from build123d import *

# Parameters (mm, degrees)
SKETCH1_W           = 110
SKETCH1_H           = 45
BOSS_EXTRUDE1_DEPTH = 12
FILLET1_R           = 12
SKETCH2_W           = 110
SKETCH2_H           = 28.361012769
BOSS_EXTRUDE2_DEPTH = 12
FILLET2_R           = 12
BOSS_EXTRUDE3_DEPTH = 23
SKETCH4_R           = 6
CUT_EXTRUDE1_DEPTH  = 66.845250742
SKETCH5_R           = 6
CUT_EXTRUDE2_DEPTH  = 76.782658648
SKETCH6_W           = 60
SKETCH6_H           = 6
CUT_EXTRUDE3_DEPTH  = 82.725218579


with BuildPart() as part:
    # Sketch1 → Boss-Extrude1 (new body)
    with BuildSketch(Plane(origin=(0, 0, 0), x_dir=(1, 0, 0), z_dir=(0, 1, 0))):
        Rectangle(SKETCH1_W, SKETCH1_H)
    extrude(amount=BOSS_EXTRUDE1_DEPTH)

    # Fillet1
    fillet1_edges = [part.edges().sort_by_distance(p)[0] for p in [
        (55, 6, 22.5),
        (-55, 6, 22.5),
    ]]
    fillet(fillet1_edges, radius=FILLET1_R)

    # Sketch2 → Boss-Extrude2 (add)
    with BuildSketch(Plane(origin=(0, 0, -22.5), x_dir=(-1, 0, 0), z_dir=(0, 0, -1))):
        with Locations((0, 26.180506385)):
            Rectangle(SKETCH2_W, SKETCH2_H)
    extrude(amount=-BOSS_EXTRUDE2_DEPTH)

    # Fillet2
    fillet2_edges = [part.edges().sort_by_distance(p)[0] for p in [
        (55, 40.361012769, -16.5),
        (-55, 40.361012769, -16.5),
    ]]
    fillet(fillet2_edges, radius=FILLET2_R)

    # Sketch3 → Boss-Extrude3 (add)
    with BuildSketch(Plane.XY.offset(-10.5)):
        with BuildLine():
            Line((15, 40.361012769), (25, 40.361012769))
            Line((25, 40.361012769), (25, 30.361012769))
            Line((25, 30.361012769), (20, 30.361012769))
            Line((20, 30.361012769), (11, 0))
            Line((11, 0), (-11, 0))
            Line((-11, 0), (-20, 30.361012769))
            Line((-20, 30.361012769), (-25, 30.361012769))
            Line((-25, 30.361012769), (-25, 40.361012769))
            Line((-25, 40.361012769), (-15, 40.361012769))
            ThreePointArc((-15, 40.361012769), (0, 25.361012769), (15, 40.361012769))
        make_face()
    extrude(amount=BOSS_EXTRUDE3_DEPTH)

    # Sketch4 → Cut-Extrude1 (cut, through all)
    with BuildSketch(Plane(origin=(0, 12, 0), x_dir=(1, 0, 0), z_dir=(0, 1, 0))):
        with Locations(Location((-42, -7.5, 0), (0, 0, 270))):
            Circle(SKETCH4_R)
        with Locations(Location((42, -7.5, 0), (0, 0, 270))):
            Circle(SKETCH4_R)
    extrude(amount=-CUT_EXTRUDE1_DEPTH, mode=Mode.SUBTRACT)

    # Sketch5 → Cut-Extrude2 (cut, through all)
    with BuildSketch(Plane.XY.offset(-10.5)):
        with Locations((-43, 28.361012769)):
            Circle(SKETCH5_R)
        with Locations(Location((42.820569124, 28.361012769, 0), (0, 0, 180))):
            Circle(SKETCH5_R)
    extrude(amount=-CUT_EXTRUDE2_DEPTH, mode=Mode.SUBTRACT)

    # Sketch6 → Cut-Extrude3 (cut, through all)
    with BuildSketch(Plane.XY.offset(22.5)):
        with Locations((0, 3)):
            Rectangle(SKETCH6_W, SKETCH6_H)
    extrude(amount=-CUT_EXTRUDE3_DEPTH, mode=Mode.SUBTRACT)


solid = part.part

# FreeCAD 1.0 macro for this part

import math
import FreeCAD as App
import Part
import Sketcher


def edges_at(feature, points):
    """Names of the edges that pass closest to the given points."""
    edges = feature.Shape.Edges
    near = lambda p: min(range(len(edges)), key=lambda i: edges[i].distToShape(Part.Vertex(*p))[0])
    return sorted({f"Edge{near(p) + 1}" for p in points})


def add_polygon(sketch, points):
    """Adds a closed chain of lines whose ends are joined by coincident constraints."""
    first, n = sketch.GeometryCount, len(points)
    for a, b in zip(points, points[1:] + points[:1]):
        sketch.addGeometry(Part.LineSegment(App.Vector(*a, 0), App.Vector(*b, 0)), False)
    for i in range(n):
        sketch.addConstraint(Sketcher.Constraint("Coincident", first + i, 2, first + (i + 1) % n, 1))

doc = App.newDocument("Part")
params = doc.addObject("Spreadsheet::Sheet", "Params")
for row, (alias, value) in enumerate([
    ("sketch1_width", "110 mm"),
    ("sketch1_height", "45 mm"),
    ("pad1_length", "12 mm"),
    ("fillet_radius", "12 mm"),
    ("sketch2_width", "110 mm"),
    ("pad2_length", "12 mm"),
    ("fillet2_radius", "12 mm"),
    ("sketch3_radius", "15 mm"),
    ("sketch3_width", "10 mm"),
    ("sketch3_width2", "5 mm"),
    ("sketch3_width3", "22 mm"),
    ("pad3_length", "23 mm"),
    ("sketch4_diameter", "12 mm"),
    ("sketch5_diameter", "12 mm"),
    ("sketch6_width", "60 mm"),
    ("sketch6_height", "6 mm"),
], start=1):
    params.set(f"A{row}", alias)
    params.set(f"B{row}", "=" + value)
    params.setAlias(f"B{row}", alias)

body = doc.addObject("PartDesign::Body", "Body")

# Sketch on XZ plane
sketch1 = doc.addObject("Sketcher::SketchObject", "Sketch")
body.addObject(sketch1)
sketch1.AttachmentSupport = (doc.XZ_Plane, [""])
sketch1.MapMode = "FlatFace"
add_polygon(sketch1, [(-55, -22.5), (-55, 22.5), (55, 22.5), (55, -22.5)])  # lines 0-3
sketch1.addConstraint([
    Sketcher.Constraint("Vertical", 0),
    Sketcher.Constraint("Horizontal", 1),
    Sketcher.Constraint("Vertical", 2),
    Sketcher.Constraint("Horizontal", 3),
    Sketcher.Constraint("Symmetric", 0, 2, 2, 2, -1, 1),
    Sketcher.Constraint("DistanceX", 1, 1, 1, 2, 110.0),
    Sketcher.Constraint("DistanceY", 0, 1, 0, 2, 45.0),
])
sketch1.setExpression("Constraints[9]", "Params.sketch1_width")
sketch1.setExpression("Constraints[10]", "Params.sketch1_height")
pad1 = doc.addObject("PartDesign::Pad", "Pad")
body.addObject(pad1)
pad1.Profile = sketch1
pad1.setExpression("Length", "Params.pad1_length")
pad1.Reversed = True
doc.recompute()

fillet = doc.addObject("PartDesign::Fillet", "Fillet")
body.addObject(fillet)
fillet.Base = (pad1, edges_at(pad1, [(55, 6, 22.5), (-55, 6, 22.5)]))
fillet.setExpression("Radius", "Params.fillet_radius")

# Sketch on XY plane
sketch2 = doc.addObject("Sketcher::SketchObject", "Sketch001")
body.addObject(sketch2)
sketch2.AttachmentSupport = (doc.XY_Plane, [""])
sketch2.MapMode = "FlatFace"
sketch2.AttachmentOffset = App.Placement(App.Vector(0, 0, -22.5), App.Rotation())
add_polygon(sketch2, [(55, 40.361013), (55, 12), (-55, 12), (-55, 40.361013)])  # lines 0-3
sketch2.addConstraint([
    Sketcher.Constraint("Vertical", 0),
    Sketcher.Constraint("Horizontal", 1),
    Sketcher.Constraint("Vertical", 2),
    Sketcher.Constraint("Horizontal", 3),
    Sketcher.Constraint("DistanceX", 1, 2, 1, 1, 110.0),
    Sketcher.Constraint("DistanceX", -1, 1, 0, 2, 55.0),
    Sketcher.Constraint("DistanceY", -1, 1, 0, 2, 12.0),
    Sketcher.Constraint("DistanceY", 0, 2, 0, 1, 28.361013),
])
sketch2.setExpression("Constraints[8]", "Params.sketch2_width")
pad2 = doc.addObject("PartDesign::Pad", "Pad001")
body.addObject(pad2)
pad2.Profile = sketch2
pad2.setExpression("Length", "Params.pad2_length")
doc.recompute()

fillet2 = doc.addObject("PartDesign::Fillet", "Fillet001")
body.addObject(fillet2)
fillet2.Base = (pad2, edges_at(pad2, [(55, 40.361, -16.5), (-55, 40.361, -16.5)]))
fillet2.setExpression("Radius", "Params.fillet2_radius")

# Sketch on XY plane
sketch3 = doc.addObject("Sketcher::SketchObject", "Sketch002")
body.addObject(sketch3)
sketch3.AttachmentSupport = (doc.XY_Plane, [""])
sketch3.MapMode = "FlatFace"
sketch3.AttachmentOffset = App.Placement(App.Vector(0, 0, -10.5), App.Rotation())
sketch3.addGeometry([
    Part.LineSegment(App.Vector(25, 40.361013, 0), App.Vector(15, 40.361013, 0)),  # 0
    Part.ArcOfCircle(Part.Circle(App.Vector(0, 40.361013, 0), App.Vector(0, 0, 1), 15), math.radians(180), math.radians(360)),  # 1
    Part.LineSegment(App.Vector(-15, 40.361013, 0), App.Vector(-25, 40.361013, 0)),  # 2
    Part.LineSegment(App.Vector(-25, 40.361013, 0), App.Vector(-25, 30.361013, 0)),  # 3
    Part.LineSegment(App.Vector(-25, 30.361013, 0), App.Vector(-20, 30.361013, 0)),  # 4
    Part.LineSegment(App.Vector(-20, 30.361013, 0), App.Vector(-11, 0, 0)),  # 5
    Part.LineSegment(App.Vector(-11, 0, 0), App.Vector(11, 0, 0)),  # 6
    Part.LineSegment(App.Vector(11, 0, 0), App.Vector(20, 30.361013, 0)),  # 7
    Part.LineSegment(App.Vector(20, 30.361013, 0), App.Vector(25, 30.361013, 0)),  # 8
    Part.LineSegment(App.Vector(25, 30.361013, 0), App.Vector(25, 40.361013, 0)),  # 9
], False)
sketch3.addConstraint([
    Sketcher.Constraint("Coincident", 0, 2, 1, 2),
    Sketcher.Constraint("Coincident", 1, 1, 2, 1),
    Sketcher.Constraint("Coincident", 2, 2, 3, 1),
    Sketcher.Constraint("Coincident", 3, 2, 4, 1),
    Sketcher.Constraint("Coincident", 4, 2, 5, 1),
    Sketcher.Constraint("Coincident", 5, 2, 6, 1),
    Sketcher.Constraint("Coincident", 6, 2, 7, 1),
    Sketcher.Constraint("Coincident", 7, 2, 8, 1),
    Sketcher.Constraint("Coincident", 8, 2, 9, 1),
    Sketcher.Constraint("Coincident", 9, 2, 0, 1),
    Sketcher.Constraint("Horizontal", 0),
    Sketcher.Constraint("Horizontal", 2),
    Sketcher.Constraint("Vertical", 3),
    Sketcher.Constraint("Horizontal", 4),
    Sketcher.Constraint("Horizontal", 6),
    Sketcher.Constraint("Horizontal", 8),
    Sketcher.Constraint("Vertical", 9),
    Sketcher.Constraint("Symmetric", 5, 2, 6, 2, -1, 1),
    Sketcher.Constraint("Symmetric", 0, 2, 1, 1, -2),
    Sketcher.Constraint("Symmetric", 4, 2, 7, 2, -2),
    Sketcher.Constraint("Horizontal", 1, 3, 0, 2),
    Sketcher.Constraint("Equal", 0, 2),
    Sketcher.Constraint("Equal", 2, 3),
    Sketcher.Constraint("Radius", 1, 15.0),
    Sketcher.Constraint("DistanceX", 0, 2, 0, 1, 10.0),
    Sketcher.Constraint("DistanceX", 4, 1, 4, 2, 5.0),
    Sketcher.Constraint("DistanceX", 6, 1, 6, 2, 22.0),
    Sketcher.Constraint("Distance", 5, 31.666877),
])
sketch3.setExpression("Constraints[23]", "Params.sketch3_radius")
sketch3.setExpression("Constraints[24]", "Params.sketch3_width")
sketch3.setExpression("Constraints[25]", "Params.sketch3_width2")
sketch3.setExpression("Constraints[26]", "Params.sketch3_width3")
pad3 = doc.addObject("PartDesign::Pad", "Pad002")
body.addObject(pad3)
pad3.Profile = sketch3
pad3.setExpression("Length", "Params.pad3_length")

# Sketch on XZ plane
sketch4 = doc.addObject("Sketcher::SketchObject", "Sketch003")
body.addObject(sketch4)
sketch4.AttachmentSupport = (doc.XZ_Plane, [""])
sketch4.MapMode = "FlatFace"
sketch4.AttachmentOffset = App.Placement(App.Vector(0, 0, -12), App.Rotation())
sketch4.addGeometry([
    Part.Circle(App.Vector(-42, 7.5, 0), App.Vector(0, 0, 1), 6),
    Part.Circle(App.Vector(42, 7.5, 0), App.Vector(0, 0, 1), 6),
], False)
sketch4.addConstraint([
    Sketcher.Constraint("Equal", 0, 1),
    Sketcher.Constraint("Symmetric", 0, 3, 1, 3, -2),
    Sketcher.Constraint("Diameter", 0, 12.0),
    Sketcher.Constraint("DistanceX", 0, 3, -1, 1, 42.0),
    Sketcher.Constraint("DistanceY", -1, 1, 0, 3, 7.5),
])
sketch4.setExpression("Constraints[2]", "Params.sketch4_diameter")
pocket1 = doc.addObject("PartDesign::Pocket", "Pocket")
body.addObject(pocket1)
pocket1.Profile = sketch4
pocket1.Type = "ThroughAll"
pocket1.Reversed = True

# Sketch on XY plane
sketch5 = doc.addObject("Sketcher::SketchObject", "Sketch004")
body.addObject(sketch5)
sketch5.AttachmentSupport = (doc.XY_Plane, [""])
sketch5.MapMode = "FlatFace"
sketch5.AttachmentOffset = App.Placement(App.Vector(0, 0, -10.5), App.Rotation())
sketch5.addGeometry([
    Part.Circle(App.Vector(-43, 28.361013, 0), App.Vector(0, 0, 1), 6),
    Part.Circle(App.Vector(42.820569, 28.361013, 0), App.Vector(0, 0, 1), 6),
], False)
sketch5.addConstraint([
    Sketcher.Constraint("Equal", 0, 1),
    Sketcher.Constraint("Horizontal", 0, 3, 1, 3),
    Sketcher.Constraint("Diameter", 0, 12.0),
    Sketcher.Constraint("DistanceX", 0, 3, -1, 1, 43.0),
    Sketcher.Constraint("DistanceX", -1, 1, 1, 3, 42.820569),
    Sketcher.Constraint("DistanceY", -1, 1, 0, 3, 28.361013),
])
sketch5.setExpression("Constraints[2]", "Params.sketch5_diameter")
pocket2 = doc.addObject("PartDesign::Pocket", "Pocket001")
body.addObject(pocket2)
pocket2.Profile = sketch5
pocket2.Type = "ThroughAll"

# Sketch on XY plane
sketch6 = doc.addObject("Sketcher::SketchObject", "Sketch005")
body.addObject(sketch6)
sketch6.AttachmentSupport = (doc.XY_Plane, [""])
sketch6.MapMode = "FlatFace"
sketch6.AttachmentOffset = App.Placement(App.Vector(0, 0, 22.5), App.Rotation())
add_polygon(sketch6, [(-30, 6), (-30, 0), (30, 0), (30, 6)])  # lines 0-3
sketch6.addConstraint([
    Sketcher.Constraint("Vertical", 0),
    Sketcher.Constraint("Horizontal", 1),
    Sketcher.Constraint("Vertical", 2),
    Sketcher.Constraint("Horizontal", 3),
    Sketcher.Constraint("Symmetric", 0, 2, 1, 2, -1, 1),
    Sketcher.Constraint("DistanceX", 1, 1, 1, 2, 60.0),
    Sketcher.Constraint("DistanceY", 0, 2, 0, 1, 6.0),
])
sketch6.setExpression("Constraints[9]", "Params.sketch6_width")
sketch6.setExpression("Constraints[10]", "Params.sketch6_height")
pocket3 = doc.addObject("PartDesign::Pocket", "Pocket002")
body.addObject(pocket3)
pocket3.Profile = sketch6
pocket3.Type = "ThroughAll"

doc.recompute()
